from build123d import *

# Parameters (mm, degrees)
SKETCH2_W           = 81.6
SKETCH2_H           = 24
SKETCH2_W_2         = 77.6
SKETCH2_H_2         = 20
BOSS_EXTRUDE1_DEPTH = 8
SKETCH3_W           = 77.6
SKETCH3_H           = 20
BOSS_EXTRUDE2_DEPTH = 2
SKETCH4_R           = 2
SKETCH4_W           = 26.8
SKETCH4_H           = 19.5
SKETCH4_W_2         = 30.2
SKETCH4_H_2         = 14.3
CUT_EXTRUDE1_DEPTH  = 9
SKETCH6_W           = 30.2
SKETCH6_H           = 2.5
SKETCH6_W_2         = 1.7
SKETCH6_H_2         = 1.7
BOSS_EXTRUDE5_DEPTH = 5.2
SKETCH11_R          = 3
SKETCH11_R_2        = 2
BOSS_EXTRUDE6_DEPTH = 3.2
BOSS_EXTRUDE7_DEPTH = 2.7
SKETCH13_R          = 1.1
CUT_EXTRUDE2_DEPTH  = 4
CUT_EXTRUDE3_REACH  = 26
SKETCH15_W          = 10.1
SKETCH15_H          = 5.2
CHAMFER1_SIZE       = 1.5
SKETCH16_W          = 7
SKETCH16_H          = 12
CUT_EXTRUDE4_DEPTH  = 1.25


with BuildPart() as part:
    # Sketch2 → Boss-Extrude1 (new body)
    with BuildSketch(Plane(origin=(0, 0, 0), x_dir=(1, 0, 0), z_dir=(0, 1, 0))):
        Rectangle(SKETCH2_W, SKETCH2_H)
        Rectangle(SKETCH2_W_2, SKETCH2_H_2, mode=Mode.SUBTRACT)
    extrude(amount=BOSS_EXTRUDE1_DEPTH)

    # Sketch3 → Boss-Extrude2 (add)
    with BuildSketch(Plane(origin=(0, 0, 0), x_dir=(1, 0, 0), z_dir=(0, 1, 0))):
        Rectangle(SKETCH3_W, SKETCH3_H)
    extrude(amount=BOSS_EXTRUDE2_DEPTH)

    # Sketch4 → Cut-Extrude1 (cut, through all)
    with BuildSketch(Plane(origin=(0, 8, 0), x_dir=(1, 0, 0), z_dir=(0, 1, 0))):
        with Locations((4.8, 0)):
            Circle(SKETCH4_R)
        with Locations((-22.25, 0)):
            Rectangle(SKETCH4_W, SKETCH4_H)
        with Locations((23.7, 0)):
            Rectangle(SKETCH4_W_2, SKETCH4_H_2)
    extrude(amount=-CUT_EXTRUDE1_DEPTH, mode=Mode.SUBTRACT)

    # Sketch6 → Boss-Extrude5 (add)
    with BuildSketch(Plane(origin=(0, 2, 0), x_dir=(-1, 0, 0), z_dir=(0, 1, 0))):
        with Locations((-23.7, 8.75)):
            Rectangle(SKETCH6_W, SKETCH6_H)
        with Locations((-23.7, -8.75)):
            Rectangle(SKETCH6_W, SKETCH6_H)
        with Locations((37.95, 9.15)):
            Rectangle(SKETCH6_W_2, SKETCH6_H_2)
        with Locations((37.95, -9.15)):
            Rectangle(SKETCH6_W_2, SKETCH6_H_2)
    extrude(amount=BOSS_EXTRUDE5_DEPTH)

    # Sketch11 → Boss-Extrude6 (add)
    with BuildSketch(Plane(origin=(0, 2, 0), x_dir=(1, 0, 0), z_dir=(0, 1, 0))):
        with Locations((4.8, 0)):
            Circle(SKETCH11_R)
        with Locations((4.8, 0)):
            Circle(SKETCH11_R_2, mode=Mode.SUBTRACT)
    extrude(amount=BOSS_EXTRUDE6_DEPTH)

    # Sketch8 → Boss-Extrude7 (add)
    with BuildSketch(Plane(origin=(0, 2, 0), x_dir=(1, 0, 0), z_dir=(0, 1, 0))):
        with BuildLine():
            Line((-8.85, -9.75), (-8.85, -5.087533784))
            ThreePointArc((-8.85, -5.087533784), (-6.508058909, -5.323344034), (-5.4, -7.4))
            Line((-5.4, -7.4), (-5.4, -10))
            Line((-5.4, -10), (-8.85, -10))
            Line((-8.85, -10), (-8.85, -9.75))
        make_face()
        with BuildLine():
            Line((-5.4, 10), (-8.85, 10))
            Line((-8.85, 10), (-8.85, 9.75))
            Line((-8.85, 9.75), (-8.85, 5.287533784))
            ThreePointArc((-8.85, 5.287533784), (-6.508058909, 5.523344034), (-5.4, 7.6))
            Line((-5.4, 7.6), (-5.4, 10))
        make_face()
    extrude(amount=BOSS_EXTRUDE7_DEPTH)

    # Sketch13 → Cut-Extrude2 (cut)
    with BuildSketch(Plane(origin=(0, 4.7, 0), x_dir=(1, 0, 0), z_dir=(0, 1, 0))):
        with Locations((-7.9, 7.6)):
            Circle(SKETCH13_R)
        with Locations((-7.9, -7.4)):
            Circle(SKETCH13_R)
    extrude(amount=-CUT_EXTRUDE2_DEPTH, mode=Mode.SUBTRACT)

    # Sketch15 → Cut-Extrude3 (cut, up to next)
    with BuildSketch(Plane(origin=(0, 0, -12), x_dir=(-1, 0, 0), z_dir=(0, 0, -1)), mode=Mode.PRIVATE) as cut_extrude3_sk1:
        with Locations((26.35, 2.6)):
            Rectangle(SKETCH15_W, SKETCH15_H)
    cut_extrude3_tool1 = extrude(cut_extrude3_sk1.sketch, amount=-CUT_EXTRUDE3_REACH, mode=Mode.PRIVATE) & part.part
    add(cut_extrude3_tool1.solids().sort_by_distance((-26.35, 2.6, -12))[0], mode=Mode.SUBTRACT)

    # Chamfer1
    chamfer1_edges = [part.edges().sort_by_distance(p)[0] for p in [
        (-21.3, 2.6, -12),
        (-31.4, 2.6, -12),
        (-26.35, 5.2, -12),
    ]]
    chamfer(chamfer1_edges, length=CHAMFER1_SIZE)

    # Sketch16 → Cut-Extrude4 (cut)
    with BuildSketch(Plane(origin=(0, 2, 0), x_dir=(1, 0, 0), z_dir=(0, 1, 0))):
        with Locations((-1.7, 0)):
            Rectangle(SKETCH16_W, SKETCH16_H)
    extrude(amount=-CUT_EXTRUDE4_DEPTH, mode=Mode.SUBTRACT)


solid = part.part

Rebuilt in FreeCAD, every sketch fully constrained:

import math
import FreeCAD as App
import Part
import Sketcher

V = App.Vector


def edges_at(feature, points):
    """Names of the edges that pass closest to the given points."""
    edges = feature.Shape.Edges
    near = lambda p: min(range(len(edges)), key=lambda i: edges[i].distToShape(Part.Vertex(*p))[0])
    return sorted({f"Edge{near(p) + 1}" for p in points})


def add_polygon(sketch, points):
    """Adds a closed chain of lines whose ends are joined by coincident constraints."""
    first, n = sketch.GeometryCount, len(points)
    for a, b in zip(points, points[1:] + points[:1]):
        sketch.addGeometry(Part.LineSegment(App.Vector(*a, 0), App.Vector(*b, 0)), False)
    for i in range(n):
        sketch.addConstraint(Sketcher.Constraint("Coincident", first + i, 2, first + (i + 1) % n, 1))

doc = App.newDocument("Part")
body = doc.addObject("PartDesign::Body", "Body")

sketch1 = doc.addObject("Sketcher::SketchObject", "Sketch")
body.addObject(sketch1)
sketch1.AttachmentSupport = (doc.XZ_Plane, [""])
sketch1.MapMode = "FlatFace"
add_polygon(sketch1, [(-41, -12), (-41, 12), (41, 12), (41, -12)])
add_polygon(sketch1, [(39, 10), (-39, 10), (-39, -10), (39, -10)])
sketch1.addConstraint([
    Sketcher.Constraint("Vertical", 0),
    Sketcher.Constraint("Horizontal", 1),
    Sketcher.Constraint("Vertical", 2),
    Sketcher.Constraint("Horizontal", 3),
    Sketcher.Constraint("Horizontal", 4),
    Sketcher.Constraint("Vertical", 5),
    Sketcher.Constraint("Horizontal", 6),
    Sketcher.Constraint("Vertical", 7),
    Sketcher.Constraint("Symmetric", 0, 2, 2, 2, -1, 1),
    Sketcher.Constraint("Symmetric", 4, 2, 6, 2, -1, 1),
    Sketcher.Constraint("DistanceY", 0, 1, 0, 2, 24.0),
    Sketcher.Constraint("DistanceY", 5, 2, 5, 1, 20.0),
    Sketcher.Constraint("DistanceX", 1, 1, 1, 2, 81.6),
    Sketcher.Constraint("DistanceX", 4, 2, 4, 1, 77.6),
])
pad1 = doc.addObject("PartDesign::Pad", "Pad")
body.addObject(pad1)
pad1.Profile = sketch1
pad1.Length = 8
pad1.Reversed = True

sketch2 = doc.addObject("Sketcher::SketchObject", "Sketch001")
body.addObject(sketch2)
sketch2.AttachmentSupport = (doc.XZ_Plane, [""])
sketch2.MapMode = "FlatFace"
add_polygon(sketch2, [(-39, -10), (-39, 10), (39, 10), (39, -10)])
sketch2.addConstraint([
    Sketcher.Constraint("Vertical", 0),
    Sketcher.Constraint("Horizontal", 1),
    Sketcher.Constraint("Vertical", 2),
    Sketcher.Constraint("Horizontal", 3),
    Sketcher.Constraint("Symmetric", 0, 2, 2, 2, -1, 1),
    Sketcher.Constraint("DistanceY", 0, 1, 0, 2, 20.0),
    Sketcher.Constraint("DistanceX", 1, 1, 1, 2, 77.6),
])
pad2 = doc.addObject("PartDesign::Pad", "Pad001")
body.addObject(pad2)
pad2.Profile = sketch2
pad2.Length = 2
pad2.Reversed = True

sketch3 = doc.addObject("Sketcher::SketchObject", "Sketch002")
body.addObject(sketch3)
sketch3.AttachmentSupport = (doc.XZ_Plane, [""])
sketch3.MapMode = "FlatFace"
sketch3.AttachmentOffset = App.Placement(V(0, 0, -8), App.Rotation())
sketch3.addGeometry(Part.Circle(V(4.8, 0, 0), V(0, 0, 1), 2), False)
add_polygon(sketch3, [(-35.6, -9.8), (-35.6, 9.8), (-8.8, 9.8), (-8.8, -9.8)])
add_polygon(sketch3, [(8.6, -7.2), (8.6, 7.2), (38.8, 7.2), (38.8, -7.2)])
sketch3.addConstraint([
    Sketcher.Constraint("Vertical", 1),
    Sketcher.Constraint("Horizontal", 2),
    Sketcher.Constraint("Vertical", 3),
    Sketcher.Constraint("Horizontal", 4),
    Sketcher.Constraint("Vertical", 5),
    Sketcher.Constraint("Horizontal", 6),
    Sketcher.Constraint("Vertical", 7),
    Sketcher.Constraint("Horizontal", 8),
    Sketcher.Constraint("PointOnObject", 0, 3, -1),
    Sketcher.Constraint("Diameter", 0, 4.0),
    Sketcher.Constraint("DistanceX", 2, 1, 2, 2, 26.8),
    Sketcher.Constraint("DistanceX", 6, 1, 6, 2, 30.2),
    Sketcher.Constraint("DistanceY", 1, 1, 1, 2, 19.5),
    Sketcher.Constraint("DistanceY", 5, 1, 5, 2, 14.3),
    Sketcher.Constraint("DistanceX", 0, 3, 6, 2, 34.0),
    Sketcher.Constraint("DistanceX", -1, 1, 0, 3, 4.8),
    Sketcher.Constraint("DistanceY", 5, 2, 2, 2, 2.6),
    Sketcher.Constraint("DistanceX", 1, 2, -1, 1, 35.65),
    Sketcher.Constraint("DistanceY", -1, 1, 1, 2, 9.75),
])
pocket1 = doc.addObject("PartDesign::Pocket", "Pocket")
body.addObject(pocket1)
pocket1.Profile = sketch3
pocket1.Type = "ThroughAll"
pocket1.Reversed = True

sketch4 = doc.addObject("Sketcher::SketchObject", "Sketch003")
body.addObject(sketch4)
sketch4.AttachmentSupport = (doc.XZ_Plane, [""])
sketch4.MapMode = "FlatFace"
sketch4.AttachmentOffset = App.Placement(V(0, 0, -2), App.Rotation())
add_polygon(sketch4, [(38.8, 10), (38.8, 7.5), (8.6, 7.5), (8.6, 10)])
add_polygon(sketch4, [(38.8, -7.5), (38.8, -10), (8.6, -10), (8.6, -7.5)])
add_polygon(sketch4, [(-37.1, 10), (-37.1, 8.3), (-38.8, 8.3), (-38.8, 10)])
add_polygon(sketch4, [(-37.1, -8.3), (-37.1, -10), (-38.8, -10), (-38.8, -8.3)])
sketch4.addConstraint([
    Sketcher.Constraint("Vertical", 0),
    Sketcher.Constraint("Horizontal", 1),
    Sketcher.Constraint("Vertical", 2),
    Sketcher.Constraint("Horizontal", 3),
    Sketcher.Constraint("Vertical", 4),
    Sketcher.Constraint("Horizontal", 5),
    Sketcher.Constraint("Vertical", 6),
    Sketcher.Constraint("Horizontal", 7),
    Sketcher.Constraint("Vertical", 8),
    Sketcher.Constraint("Horizontal", 9),
    Sketcher.Constraint("Vertical", 10),
    Sketcher.Constraint("Horizontal", 11),
    Sketcher.Constraint("Vertical", 12),
    Sketcher.Constraint("Horizontal", 13),
    Sketcher.Constraint("Vertical", 14),
    Sketcher.Constraint("Horizontal", 15),
    Sketcher.Constraint("Symmetric", 4, 2, 10, 2, -1, 1),
    Sketcher.Constraint("Symmetric", 3, 2, 13, 2, -1, 1),
    Sketcher.Constraint("Symmetric", 3, 2, 10, 2, -2),
    Sketcher.Constraint("Symmetric", 1, 2, 6, 2, -1),
    Sketcher.Constraint("Symmetric", 8, 2, 15, 2, -1),
    Sketcher.Constraint("Equal", 15, 8),
    Sketcher.Constraint("DistanceX", 1, 2, 1, 1, 30.2),
    Sketcher.Constraint("DistanceX", 9, 2, 9, 1, 1.7),
    Sketcher.Constraint("DistanceY", 0, 2, 0, 1, 2.5),
    Sketcher.Constraint("DistanceY", -1, 1, 2, 2, 10.0),
    Sketcher.Constraint("DistanceX", -1, 1, 0, 2, 38.8),
])
pad3 = doc.addObject("PartDesign::Pad", "Pad002")
body.addObject(pad3)
pad3.Profile = sketch4
pad3.Length = 5.2
pad3.Reversed = True

sketch5 = doc.addObject("Sketcher::SketchObject", "Sketch004")
body.addObject(sketch5)
sketch5.AttachmentSupport = (doc.XZ_Plane, [""])
sketch5.MapMode = "FlatFace"
sketch5.AttachmentOffset = App.Placement(V(0, 0, -2), App.Rotation())
sketch5.addGeometry([
    Part.Circle(V(4.8, 0, 0), V(0, 0, 1), 3),
    Part.Circle(V(4.8, 0, 0), V(0, 0, 1), 2),
], False)
sketch5.addConstraint([
    Sketcher.Constraint("Coincident", 1, 3, 0, 3),
    Sketcher.Constraint("PointOnObject", 0, 3, -1),
    Sketcher.Constraint("Diameter", 0, 6.0),
    Sketcher.Constraint("Diameter", 1, 4.0),
    Sketcher.Constraint("DistanceX", -1, 1, 0, 3, 4.8),
])
pad4 = doc.addObject("PartDesign::Pad", "Pad003")
body.addObject(pad4)
pad4.Profile = sketch5
pad4.Length = 3.2
pad4.Reversed = True

sketch6 = doc.addObject("Sketcher::SketchObject", "Sketch005")
body.addObject(sketch6)
sketch6.AttachmentSupport = (doc.XZ_Plane, [""])
sketch6.MapMode = "FlatFace"
sketch6.AttachmentOffset = App.Placement(V(0, 0, -2), App.Rotation())
sketch6.addGeometry([
    Part.ArcOfCircle(Part.Circle(V(-7.9, 7.4, 0), V(0, 0, 1), 2.5), math.radians(-112), math.radians(0)),
    Part.LineSegment(V(-8.8, 5.1, 0), V(-8.8, 10, 0)),
    Part.LineSegment(V(-8.8, 10, 0), V(-5.4, 10, 0)),
    Part.LineSegment(V(-5.4, 10, 0), V(-5.4, 7.4, 0)),
    Part.LineSegment(V(-5.4, -10, 0), V(-8.8, -10, 0)),
    Part.LineSegment(V(-8.8, -10, 0), V(-8.8, -5.3, 0)),
    Part.ArcOfCircle(Part.Circle(V(-7.9, -7.6, 0), V(0, 0, 1), 2.5), math.radians(0), math.radians(112)),
    Part.LineSegment(V(-5.4, -7.6, 0), V(-5.4, -10, 0)),
], False)
sketch6.addConstraint([
    Sketcher.Constraint("Coincident", 0, 1, 1, 1),
    Sketcher.Constraint("Coincident", 1, 2, 2, 1),
    Sketcher.Constraint("Coincident", 2, 2, 3, 1),
    Sketcher.Constraint("Tangent", 3, 2, 0, 2),
    Sketcher.Constraint("Coincident", 4, 2, 5, 1),
    Sketcher.Constraint("Coincident", 5, 2, 6, 2),
    Sketcher.Constraint("Tangent", 6, 1, 7, 1),
    Sketcher.Constraint("Coincident", 7, 2, 4, 1),
    Sketcher.Constraint("Vertical", 1),
    Sketcher.Constraint("Horizontal", 2),
    Sketcher.Constraint("Vertical", 3),
    Sketcher.Constraint("Horizontal", 4),
    Sketcher.Constraint("Vertical", 5),
    Sketcher.Constraint("Vertical", 7),
    Sketcher.Constraint("Equal", 0, 6),
    Sketcher.Constraint("Symmetric", 1, 2, 4, 2, -1),
    Sketcher.Constraint("Vertical", 0, 3, 6, 3),
    Sketcher.Constraint("Radius", 0, 2.5),
    Sketcher.Constraint("DistanceY", 3, 2, 3, 1, 2.6),
    Sketcher.Constraint("DistanceY", 7, 2, 7, 1, 2.4),
    Sketcher.Constraint("DistanceY", -1, 1, 1, 2, 10.0),
    Sketcher.Constraint("DistanceX", 2, 1, 2, 2, 3.45),
    Sketcher.Constraint("DistanceX", 0, 3, -1, 1, 7.9),
])
pad5 = doc.addObject("PartDesign::Pad", "Pad004")
body.addObject(pad5)
pad5.Profile = sketch6
pad5.Length = 2.7
pad5.Reversed = True

sketch7 = doc.addObject("Sketcher::SketchObject", "Sketch006")
body.addObject(sketch7)
sketch7.AttachmentSupport = (doc.XZ_Plane, [""])
sketch7.MapMode = "FlatFace"
sketch7.AttachmentOffset = App.Placement(V(0, 0, -4.7), App.Rotation())
sketch7.addGeometry([
    Part.Circle(V(-7.9, -7.6, 0), V(0, 0, 1), 1.1),
    Part.Circle(V(-7.9, 7.4, 0), V(0, 0, 1), 1.1),
], False)
sketch7.addConstraint([
    Sketcher.Constraint("Equal", 0, 1),
    Sketcher.Constraint("Vertical", 0, 3, 1, 3),
    Sketcher.Constraint("Diameter", 0, 2.2),
    Sketcher.Constraint("DistanceY", 0, 3, 1, 3, 15.0),
    Sketcher.Constraint("DistanceX", 0, 3, -1, 1, 7.9),
    Sketcher.Constraint("DistanceY", 0, 3, -1, 1, 7.6),
])
pocket2 = doc.addObject("PartDesign::Pocket", "Pocket001")
body.addObject(pocket2)
pocket2.Profile = sketch7
pocket2.Length = 4
pocket2.Reversed = True

sketch8 = doc.addObject("Sketcher::SketchObject", "Sketch007")
body.addObject(sketch8)
sketch8.AttachmentSupport = (doc.XY_Plane, [""])
sketch8.MapMode = "FlatFace"
sketch8.AttachmentOffset = App.Placement(V(0, 0, -12), App.Rotation())
add_polygon(sketch8, [(-21, 5), (-21, 0), (-31, 0), (-31, 5)])
sketch8.addConstraint([
    Sketcher.Constraint("Vertical", 0),
    Sketcher.Constraint("Horizontal", 1),
    Sketcher.Constraint("Vertical", 2),
    Sketcher.Constraint("Horizontal", 3),
    Sketcher.Constraint("PointOnObject", 0, 2, -1),
    Sketcher.Constraint("DistanceX", 1, 2, 1, 1, 10.1),
    Sketcher.Constraint("DistanceY", 0, 2, 0, 1, 5.2),
    Sketcher.Constraint("DistanceX", 0, 2, -1, 1, 21.3),
])
pocket3 = doc.addObject("PartDesign::Pocket", "Pocket002")
body.addObject(pocket3)
pocket3.Profile = sketch8
pocket3.Length = 2.25
pocket3.Reversed = True
doc.recompute()

chamfer = doc.addObject("PartDesign::Chamfer", "Chamfer")
body.addObject(chamfer)
chamfer.Base = (pocket3, edges_at(pocket3, [(-21.3, 2.6, -12), (-31.4, 2.6, -12), (-26.35, 5.2, -12)]))
chamfer.Size = 1.5

sketch9 = doc.addObject("Sketcher::SketchObject", "Sketch008")
body.addObject(sketch9)
sketch9.AttachmentSupport = (doc.XZ_Plane, [""])
sketch9.MapMode = "FlatFace"
sketch9.AttachmentOffset = App.Placement(V(0, 0, -2), App.Rotation())
add_polygon(sketch9, [(-5, -6), (-5, 6), (2, 6), (2, -6)])
sketch9.addConstraint([
    Sketcher.Constraint("Vertical", 0),
    Sketcher.Constraint("Horizontal", 1),
    Sketcher.Constraint("Vertical", 2),
    Sketcher.Constraint("Horizontal", 3),
    Sketcher.Constraint("DistanceX", 1, 1, 1, 2, 7.0),
    Sketcher.Constraint("DistanceY", 0, 1, 0, 2, 12.0),
    Sketcher.Constraint("DistanceY", -1, 1, 0, 2, 6.0),
    Sketcher.Constraint("DistanceX", 0, 2, -1, 1, 5.2),
])
pocket4 = doc.addObject("PartDesign::Pocket", "Pocket003")
body.addObject(pocket4)
pocket4.Profile = sketch9
pocket4.Length = 1.25
pocket4.Reversed = True

doc.recompute()
